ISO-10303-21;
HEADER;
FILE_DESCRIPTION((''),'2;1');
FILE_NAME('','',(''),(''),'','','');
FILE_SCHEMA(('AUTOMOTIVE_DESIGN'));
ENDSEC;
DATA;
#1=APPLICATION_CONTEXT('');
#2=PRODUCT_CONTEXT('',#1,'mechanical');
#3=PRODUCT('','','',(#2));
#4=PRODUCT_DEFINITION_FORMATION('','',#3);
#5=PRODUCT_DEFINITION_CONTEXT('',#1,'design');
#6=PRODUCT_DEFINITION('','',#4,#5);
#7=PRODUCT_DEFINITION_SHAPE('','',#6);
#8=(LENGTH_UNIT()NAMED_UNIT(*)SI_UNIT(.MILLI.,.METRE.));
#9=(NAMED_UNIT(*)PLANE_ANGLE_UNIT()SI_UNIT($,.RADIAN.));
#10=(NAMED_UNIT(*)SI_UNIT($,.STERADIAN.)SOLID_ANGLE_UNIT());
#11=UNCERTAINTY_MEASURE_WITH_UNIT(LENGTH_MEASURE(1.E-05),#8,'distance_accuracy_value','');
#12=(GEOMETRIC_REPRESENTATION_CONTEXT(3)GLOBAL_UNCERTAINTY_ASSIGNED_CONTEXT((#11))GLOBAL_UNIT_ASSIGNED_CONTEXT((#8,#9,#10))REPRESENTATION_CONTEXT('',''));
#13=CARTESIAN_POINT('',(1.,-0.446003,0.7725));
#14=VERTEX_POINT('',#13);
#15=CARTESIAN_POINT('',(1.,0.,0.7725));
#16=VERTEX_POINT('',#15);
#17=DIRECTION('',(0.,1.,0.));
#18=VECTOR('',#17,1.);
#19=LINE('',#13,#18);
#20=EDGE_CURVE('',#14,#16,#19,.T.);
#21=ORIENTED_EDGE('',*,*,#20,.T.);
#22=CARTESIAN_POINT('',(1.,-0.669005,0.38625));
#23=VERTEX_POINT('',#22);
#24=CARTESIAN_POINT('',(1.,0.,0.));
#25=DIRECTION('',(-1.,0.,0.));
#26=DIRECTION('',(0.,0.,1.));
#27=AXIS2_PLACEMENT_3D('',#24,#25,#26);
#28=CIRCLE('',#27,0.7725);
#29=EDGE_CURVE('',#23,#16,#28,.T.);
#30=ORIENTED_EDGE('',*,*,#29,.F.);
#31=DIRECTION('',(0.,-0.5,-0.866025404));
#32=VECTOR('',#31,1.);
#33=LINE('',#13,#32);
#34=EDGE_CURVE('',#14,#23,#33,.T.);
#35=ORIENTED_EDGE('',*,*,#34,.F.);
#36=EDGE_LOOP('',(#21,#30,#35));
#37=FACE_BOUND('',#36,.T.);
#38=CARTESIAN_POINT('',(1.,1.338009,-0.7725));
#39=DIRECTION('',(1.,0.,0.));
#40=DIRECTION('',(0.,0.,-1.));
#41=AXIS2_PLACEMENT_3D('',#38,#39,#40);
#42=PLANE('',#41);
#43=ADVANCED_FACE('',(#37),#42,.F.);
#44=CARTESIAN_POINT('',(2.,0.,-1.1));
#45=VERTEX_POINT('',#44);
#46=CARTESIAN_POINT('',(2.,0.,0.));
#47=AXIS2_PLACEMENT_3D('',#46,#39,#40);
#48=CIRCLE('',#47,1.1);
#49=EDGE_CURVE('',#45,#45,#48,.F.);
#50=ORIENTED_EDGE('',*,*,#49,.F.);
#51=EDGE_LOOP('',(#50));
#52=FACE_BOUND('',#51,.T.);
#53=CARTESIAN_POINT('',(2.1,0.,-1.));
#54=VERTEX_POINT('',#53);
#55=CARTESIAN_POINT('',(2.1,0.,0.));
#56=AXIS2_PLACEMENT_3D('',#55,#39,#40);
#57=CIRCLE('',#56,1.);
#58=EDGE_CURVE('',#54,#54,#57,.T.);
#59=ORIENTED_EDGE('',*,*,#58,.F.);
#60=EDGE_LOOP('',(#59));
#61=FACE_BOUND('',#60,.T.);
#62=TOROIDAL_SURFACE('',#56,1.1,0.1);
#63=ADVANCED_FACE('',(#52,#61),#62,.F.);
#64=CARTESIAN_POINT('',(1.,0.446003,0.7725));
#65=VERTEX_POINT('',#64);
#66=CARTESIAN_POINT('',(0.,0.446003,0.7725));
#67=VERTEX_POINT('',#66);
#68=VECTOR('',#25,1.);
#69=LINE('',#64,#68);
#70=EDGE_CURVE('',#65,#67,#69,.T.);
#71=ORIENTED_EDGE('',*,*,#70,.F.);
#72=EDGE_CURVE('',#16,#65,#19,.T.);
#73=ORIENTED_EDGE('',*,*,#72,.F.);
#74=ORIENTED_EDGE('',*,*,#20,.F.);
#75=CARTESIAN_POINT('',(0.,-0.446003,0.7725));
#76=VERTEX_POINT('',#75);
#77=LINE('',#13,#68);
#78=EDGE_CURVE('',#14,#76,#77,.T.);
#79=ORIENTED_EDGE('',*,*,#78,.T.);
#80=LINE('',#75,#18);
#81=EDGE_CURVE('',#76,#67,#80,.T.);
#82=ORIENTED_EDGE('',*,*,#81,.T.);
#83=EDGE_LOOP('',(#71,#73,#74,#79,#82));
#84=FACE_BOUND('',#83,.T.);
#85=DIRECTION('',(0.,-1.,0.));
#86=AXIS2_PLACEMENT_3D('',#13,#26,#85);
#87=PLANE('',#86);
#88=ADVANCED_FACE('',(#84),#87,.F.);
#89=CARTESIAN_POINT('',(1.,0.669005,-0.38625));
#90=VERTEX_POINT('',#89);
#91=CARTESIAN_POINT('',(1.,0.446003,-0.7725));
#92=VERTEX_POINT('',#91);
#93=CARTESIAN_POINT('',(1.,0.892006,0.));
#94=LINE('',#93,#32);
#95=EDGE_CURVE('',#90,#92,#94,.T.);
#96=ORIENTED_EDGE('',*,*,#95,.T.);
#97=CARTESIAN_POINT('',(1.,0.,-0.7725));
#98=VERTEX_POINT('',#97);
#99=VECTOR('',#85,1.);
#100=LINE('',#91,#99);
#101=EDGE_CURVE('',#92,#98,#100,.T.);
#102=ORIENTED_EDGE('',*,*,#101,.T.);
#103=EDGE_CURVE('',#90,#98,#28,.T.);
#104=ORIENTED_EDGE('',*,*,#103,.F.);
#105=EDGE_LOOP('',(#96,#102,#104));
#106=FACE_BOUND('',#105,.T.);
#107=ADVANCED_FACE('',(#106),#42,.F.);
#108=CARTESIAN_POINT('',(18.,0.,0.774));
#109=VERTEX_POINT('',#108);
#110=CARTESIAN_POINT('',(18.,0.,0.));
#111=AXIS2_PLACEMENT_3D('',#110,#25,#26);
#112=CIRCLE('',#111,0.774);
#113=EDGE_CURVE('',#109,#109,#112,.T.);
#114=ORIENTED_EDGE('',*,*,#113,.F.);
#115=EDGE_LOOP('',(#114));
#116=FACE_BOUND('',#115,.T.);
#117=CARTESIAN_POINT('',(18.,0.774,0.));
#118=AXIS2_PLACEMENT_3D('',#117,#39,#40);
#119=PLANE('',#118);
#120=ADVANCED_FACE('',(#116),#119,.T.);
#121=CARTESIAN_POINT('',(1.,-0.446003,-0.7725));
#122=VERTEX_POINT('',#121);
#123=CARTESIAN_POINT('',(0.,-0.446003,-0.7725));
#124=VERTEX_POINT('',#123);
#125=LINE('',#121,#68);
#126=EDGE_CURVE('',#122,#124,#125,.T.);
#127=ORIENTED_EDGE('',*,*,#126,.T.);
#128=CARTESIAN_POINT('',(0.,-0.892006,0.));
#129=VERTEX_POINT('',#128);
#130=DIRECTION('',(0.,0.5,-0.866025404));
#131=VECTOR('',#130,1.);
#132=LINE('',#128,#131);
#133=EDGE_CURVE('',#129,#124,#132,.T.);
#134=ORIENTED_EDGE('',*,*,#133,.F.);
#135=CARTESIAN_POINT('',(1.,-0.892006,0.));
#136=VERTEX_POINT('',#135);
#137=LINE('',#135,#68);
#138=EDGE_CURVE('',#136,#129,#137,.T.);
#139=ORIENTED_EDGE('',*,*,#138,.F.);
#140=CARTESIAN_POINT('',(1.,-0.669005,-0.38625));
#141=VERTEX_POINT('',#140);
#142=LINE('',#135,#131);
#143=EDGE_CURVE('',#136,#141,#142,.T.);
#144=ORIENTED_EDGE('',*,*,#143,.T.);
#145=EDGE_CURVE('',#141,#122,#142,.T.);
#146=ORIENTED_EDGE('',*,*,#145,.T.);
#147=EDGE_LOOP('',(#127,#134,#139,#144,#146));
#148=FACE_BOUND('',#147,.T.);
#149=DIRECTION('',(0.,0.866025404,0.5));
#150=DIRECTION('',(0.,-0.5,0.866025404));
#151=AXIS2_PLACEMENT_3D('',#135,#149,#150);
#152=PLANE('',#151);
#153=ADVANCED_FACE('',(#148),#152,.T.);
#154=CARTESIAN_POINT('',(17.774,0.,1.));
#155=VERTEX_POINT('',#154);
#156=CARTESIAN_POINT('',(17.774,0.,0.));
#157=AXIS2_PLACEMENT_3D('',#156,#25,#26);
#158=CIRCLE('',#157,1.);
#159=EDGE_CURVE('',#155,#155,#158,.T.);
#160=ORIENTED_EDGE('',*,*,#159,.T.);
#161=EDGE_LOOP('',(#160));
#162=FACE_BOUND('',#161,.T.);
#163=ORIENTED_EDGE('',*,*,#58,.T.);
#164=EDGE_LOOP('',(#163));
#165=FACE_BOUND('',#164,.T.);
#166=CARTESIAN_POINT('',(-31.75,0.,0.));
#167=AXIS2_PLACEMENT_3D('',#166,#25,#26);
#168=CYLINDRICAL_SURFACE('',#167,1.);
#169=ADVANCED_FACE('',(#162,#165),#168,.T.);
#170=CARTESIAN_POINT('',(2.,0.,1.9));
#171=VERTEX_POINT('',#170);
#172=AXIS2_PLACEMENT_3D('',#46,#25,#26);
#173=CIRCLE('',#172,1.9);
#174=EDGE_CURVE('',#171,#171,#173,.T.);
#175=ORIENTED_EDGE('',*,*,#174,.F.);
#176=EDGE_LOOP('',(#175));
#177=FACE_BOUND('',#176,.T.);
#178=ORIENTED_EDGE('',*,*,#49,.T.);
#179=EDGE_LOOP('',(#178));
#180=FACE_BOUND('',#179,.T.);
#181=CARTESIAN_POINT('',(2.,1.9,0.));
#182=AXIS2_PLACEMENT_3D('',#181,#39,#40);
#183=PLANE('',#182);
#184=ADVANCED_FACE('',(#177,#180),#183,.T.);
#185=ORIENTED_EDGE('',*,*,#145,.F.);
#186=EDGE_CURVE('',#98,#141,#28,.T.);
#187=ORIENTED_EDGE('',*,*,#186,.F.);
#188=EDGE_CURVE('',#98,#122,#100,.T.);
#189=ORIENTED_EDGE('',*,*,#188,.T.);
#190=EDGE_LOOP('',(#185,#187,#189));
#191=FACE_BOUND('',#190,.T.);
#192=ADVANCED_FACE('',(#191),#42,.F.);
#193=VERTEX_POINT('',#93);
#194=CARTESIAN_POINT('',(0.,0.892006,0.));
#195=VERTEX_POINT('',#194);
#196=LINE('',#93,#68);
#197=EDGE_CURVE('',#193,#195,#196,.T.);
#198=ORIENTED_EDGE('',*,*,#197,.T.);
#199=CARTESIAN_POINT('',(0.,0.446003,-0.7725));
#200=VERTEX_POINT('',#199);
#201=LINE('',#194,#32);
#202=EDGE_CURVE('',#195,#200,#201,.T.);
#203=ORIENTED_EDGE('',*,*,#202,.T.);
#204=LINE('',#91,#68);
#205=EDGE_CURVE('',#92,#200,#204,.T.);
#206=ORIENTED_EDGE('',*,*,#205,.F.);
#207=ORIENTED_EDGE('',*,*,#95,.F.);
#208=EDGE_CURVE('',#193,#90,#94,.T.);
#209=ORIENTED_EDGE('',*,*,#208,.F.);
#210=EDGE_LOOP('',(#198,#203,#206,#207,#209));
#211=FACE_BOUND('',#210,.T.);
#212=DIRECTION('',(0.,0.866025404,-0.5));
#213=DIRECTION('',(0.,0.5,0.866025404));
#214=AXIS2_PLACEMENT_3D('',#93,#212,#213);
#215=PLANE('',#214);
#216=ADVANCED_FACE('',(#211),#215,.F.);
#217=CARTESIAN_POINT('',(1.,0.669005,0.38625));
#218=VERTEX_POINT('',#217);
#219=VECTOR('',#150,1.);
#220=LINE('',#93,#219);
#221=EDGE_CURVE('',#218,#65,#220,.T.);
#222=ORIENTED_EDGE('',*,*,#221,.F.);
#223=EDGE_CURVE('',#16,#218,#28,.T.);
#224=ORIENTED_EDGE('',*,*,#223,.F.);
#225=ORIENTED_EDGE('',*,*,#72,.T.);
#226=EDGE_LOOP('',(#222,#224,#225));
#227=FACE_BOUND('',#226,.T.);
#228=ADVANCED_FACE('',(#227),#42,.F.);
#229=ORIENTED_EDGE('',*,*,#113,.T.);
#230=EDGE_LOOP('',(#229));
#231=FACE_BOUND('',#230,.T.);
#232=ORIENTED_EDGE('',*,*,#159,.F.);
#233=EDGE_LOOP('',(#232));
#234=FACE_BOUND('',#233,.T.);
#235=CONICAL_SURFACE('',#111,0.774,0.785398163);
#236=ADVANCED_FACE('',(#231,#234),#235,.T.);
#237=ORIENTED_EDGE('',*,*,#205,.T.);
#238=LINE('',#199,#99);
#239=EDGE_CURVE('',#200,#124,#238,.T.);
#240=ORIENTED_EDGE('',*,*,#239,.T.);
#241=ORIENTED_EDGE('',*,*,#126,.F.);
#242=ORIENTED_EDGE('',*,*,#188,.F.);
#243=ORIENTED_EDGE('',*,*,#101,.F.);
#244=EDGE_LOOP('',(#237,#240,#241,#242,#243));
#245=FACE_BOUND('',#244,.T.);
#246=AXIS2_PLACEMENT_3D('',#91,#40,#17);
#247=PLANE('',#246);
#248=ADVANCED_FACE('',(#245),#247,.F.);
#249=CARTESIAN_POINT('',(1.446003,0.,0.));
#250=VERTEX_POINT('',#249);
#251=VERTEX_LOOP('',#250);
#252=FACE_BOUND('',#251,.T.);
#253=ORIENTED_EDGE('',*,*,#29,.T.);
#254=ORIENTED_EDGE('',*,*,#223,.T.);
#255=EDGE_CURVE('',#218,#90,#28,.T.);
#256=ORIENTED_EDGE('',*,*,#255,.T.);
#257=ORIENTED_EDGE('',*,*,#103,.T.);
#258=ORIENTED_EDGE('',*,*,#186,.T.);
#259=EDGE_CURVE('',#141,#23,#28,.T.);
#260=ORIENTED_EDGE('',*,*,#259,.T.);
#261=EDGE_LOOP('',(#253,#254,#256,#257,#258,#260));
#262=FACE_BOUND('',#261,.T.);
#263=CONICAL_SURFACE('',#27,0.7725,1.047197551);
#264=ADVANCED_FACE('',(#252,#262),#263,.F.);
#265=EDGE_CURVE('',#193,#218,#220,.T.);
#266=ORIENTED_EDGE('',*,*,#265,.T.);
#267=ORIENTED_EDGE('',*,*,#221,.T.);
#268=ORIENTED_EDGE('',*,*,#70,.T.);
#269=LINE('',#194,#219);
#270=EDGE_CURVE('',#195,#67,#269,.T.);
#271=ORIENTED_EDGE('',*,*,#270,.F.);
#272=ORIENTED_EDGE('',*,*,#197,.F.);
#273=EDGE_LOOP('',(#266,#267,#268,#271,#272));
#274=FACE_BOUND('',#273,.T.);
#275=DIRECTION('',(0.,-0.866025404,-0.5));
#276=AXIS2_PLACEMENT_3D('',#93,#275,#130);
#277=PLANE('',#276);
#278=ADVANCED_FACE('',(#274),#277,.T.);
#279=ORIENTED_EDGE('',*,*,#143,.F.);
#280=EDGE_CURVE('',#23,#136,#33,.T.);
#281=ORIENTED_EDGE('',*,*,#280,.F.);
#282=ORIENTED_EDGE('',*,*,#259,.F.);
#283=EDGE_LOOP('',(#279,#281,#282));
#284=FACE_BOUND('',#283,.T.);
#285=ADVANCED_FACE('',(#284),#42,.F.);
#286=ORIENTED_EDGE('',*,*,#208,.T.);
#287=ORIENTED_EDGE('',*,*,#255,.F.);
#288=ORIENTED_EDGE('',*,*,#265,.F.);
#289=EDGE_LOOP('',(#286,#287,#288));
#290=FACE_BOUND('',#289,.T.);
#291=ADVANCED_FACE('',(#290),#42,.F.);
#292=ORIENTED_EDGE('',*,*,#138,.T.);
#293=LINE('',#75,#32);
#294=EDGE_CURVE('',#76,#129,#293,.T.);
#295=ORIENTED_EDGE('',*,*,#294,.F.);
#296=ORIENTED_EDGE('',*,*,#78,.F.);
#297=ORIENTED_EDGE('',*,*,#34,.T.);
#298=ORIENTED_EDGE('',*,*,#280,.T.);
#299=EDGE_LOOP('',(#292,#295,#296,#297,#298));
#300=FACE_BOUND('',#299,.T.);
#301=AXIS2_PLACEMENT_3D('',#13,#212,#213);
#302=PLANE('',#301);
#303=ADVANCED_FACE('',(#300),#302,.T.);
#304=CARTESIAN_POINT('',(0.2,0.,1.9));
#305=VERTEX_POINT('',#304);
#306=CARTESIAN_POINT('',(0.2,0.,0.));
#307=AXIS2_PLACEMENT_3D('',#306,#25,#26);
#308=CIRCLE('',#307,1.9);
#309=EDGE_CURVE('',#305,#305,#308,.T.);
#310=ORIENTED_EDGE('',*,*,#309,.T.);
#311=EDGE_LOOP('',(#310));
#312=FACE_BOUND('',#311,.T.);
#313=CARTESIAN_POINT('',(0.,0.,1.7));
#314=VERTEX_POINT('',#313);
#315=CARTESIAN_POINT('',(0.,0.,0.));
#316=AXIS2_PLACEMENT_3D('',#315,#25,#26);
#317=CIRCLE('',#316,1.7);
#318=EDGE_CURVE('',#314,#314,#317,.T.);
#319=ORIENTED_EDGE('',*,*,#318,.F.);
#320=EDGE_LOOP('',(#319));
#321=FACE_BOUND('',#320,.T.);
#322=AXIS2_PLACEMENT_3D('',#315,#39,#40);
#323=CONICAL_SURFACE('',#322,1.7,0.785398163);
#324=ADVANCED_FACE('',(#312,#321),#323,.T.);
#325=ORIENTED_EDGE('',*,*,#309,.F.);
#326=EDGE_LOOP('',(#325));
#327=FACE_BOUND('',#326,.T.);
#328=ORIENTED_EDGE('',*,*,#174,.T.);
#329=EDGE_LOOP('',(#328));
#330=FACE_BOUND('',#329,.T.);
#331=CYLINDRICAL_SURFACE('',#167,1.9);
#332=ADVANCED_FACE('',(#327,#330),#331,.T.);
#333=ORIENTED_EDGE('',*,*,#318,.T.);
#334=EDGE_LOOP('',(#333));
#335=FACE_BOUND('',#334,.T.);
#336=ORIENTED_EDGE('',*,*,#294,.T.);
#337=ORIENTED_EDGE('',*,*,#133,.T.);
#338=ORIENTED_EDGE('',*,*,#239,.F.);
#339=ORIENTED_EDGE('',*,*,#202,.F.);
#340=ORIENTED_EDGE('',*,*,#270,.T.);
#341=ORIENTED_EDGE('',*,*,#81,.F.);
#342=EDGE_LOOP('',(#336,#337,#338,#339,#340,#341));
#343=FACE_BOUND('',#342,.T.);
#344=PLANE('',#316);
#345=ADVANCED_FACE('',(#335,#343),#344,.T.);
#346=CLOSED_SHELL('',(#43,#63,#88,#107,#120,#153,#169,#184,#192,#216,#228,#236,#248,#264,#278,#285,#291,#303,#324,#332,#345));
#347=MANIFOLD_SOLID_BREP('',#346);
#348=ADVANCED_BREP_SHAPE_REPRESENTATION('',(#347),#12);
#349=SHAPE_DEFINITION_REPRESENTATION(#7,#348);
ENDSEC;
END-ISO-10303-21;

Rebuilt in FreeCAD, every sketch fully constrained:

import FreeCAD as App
import Part
import Sketcher
from FreeCAD import Vector
Q = App.Units.Quantity


def edges_at(feature, points):
    """Names of the edges that pass closest to the given points."""
    edges = feature.Shape.Edges
    near = lambda p: min(range(len(edges)), key=lambda i: edges[i].distToShape(Part.Vertex(*p))[0])
    return sorted({f"Edge{near(p) + 1}" for p in points})


def add_polygon(sketch, points):
    """Adds a closed chain of lines whose ends are joined by coincident constraints."""
    first, n = sketch.GeometryCount, len(points)
    for a, b in zip(points, points[1:] + points[:1]):
        sketch.addGeometry(Part.LineSegment(App.Vector(*a, 0), App.Vector(*b, 0)), False)
    for i in range(n):
        sketch.addConstraint(Sketcher.Constraint("Coincident", first + i, 2, first + (i + 1) % n, 1))

doc = App.newDocument("Part")
body = doc.addObject("PartDesign::Body", "Body")

# Sketch on XY plane
sketch1 = body.newObject("Sketcher::SketchObject", "Sketch")
sketch1.AttachmentSupport = (doc.getObject("XY_Plane"), [""])
sketch1.MapMode = "FlatFace"
add_polygon(sketch1, [(0, 1.7), (0, 0), (18, 0), (18, 0.77), (17.77, 1), (2, 1), (2, 1.9), (0.2, 1.9)])  # lines 0-7
sketch1.addConstraint(Sketcher.Constraint("Vertical", 0))
sketch1.addConstraint(Sketcher.Constraint("Horizontal", 1))
sketch1.addConstraint(Sketcher.Constraint("Vertical", 2))
sketch1.addConstraint(Sketcher.Constraint("Horizontal", 4))
sketch1.addConstraint(Sketcher.Constraint("Vertical", 5))
sketch1.addConstraint(Sketcher.Constraint("Horizontal", 6))
sketch1.addConstraint(Sketcher.Constraint("Coincident", 0, 2, -1, 1))
sketch1.addConstraint(Sketcher.Constraint("Perpendicular", 3, 7))
sketch1.addConstraint(Sketcher.Constraint("DistanceX", 1, 1, 1, 2, Q("18 mm")))
sketch1.addConstraint(Sketcher.Constraint("Angle", 3, Q("135 deg")))
sketch1.addConstraint(Sketcher.Constraint("DistanceX", 6, 2, 6, 1, Q("1.8 mm")))
sketch1.addConstraint(Sketcher.Constraint("DistanceY", 0, 2, 0, 1, Q("1.7 mm")))
sketch1.addConstraint(Sketcher.Constraint("DistanceY", 5, 1, 5, 2, Q("0.9 mm")))
sketch1.addConstraint(Sketcher.Constraint("DistanceY", -1, 1, 3, 2, Q("1 mm")))
sketch1.addConstraint(Sketcher.Constraint("DistanceX", 4, 2, 4, 1, Q("15.774 mm")))
revolution = body.newObject("PartDesign::Revolution", "Revolution")
revolution.Profile = sketch1
revolution.ReferenceAxis = (sketch1, ["H_Axis"])
revolution.Angle = 360
doc.recompute()

fillet = body.newObject("PartDesign::Fillet", "Fillet")
fillet.Base = (revolution, edges_at(revolution, [(2, -1, 0)]))
fillet.Radius = 0.1

# Sketch on XY plane
sketch2 = body.newObject("Sketcher::SketchObject", "Sketch001")
sketch2.AttachmentSupport = (doc.getObject("XY_Plane"), [""])
sketch2.MapMode = "FlatFace"
add_polygon(sketch2, [(1, 0.8), (0, 0.8), (0, 0), (1.4, 0)])  # lines 0-3
sketch2.addConstraint(Sketcher.Constraint("Horizontal", 0))
sketch2.addConstraint(Sketcher.Constraint("Vertical", 1))
sketch2.addConstraint(Sketcher.Constraint("Horizontal", 2))
sketch2.addConstraint(Sketcher.Constraint("Coincident", 1, 2, -1, 1))
sketch2.addConstraint(Sketcher.Constraint("DistanceX", 0, 2, 0, 1, Q("1 mm")))
sketch2.addConstraint(Sketcher.Constraint("Angle", 3, Q("120 deg")))
sketch2.addConstraint(Sketcher.Constraint("DistanceY", 1, 2, 1, 1, Q("0.7725 mm")))
groove = body.newObject("PartDesign::Groove", "Groove")
groove.Profile = sketch2
groove.ReferenceAxis = (sketch2, ["H_Axis"])
groove.Angle = 360

# Sketch on YZ plane
sketch3 = body.newObject("Sketcher::SketchObject", "Sketch002")
sketch3.AttachmentSupport = (doc.getObject("YZ_Plane"), [""])
sketch3.MapMode = "FlatFace"
add_polygon(sketch3, [(0.9, 0), (0.4, -0.8), (-0.4, -0.8), (-0.9, 0), (-0.4, 0.8), (0.4, 0.8)])  # lines 0-5
sketch3.addConstraint(Sketcher.Constraint("Horizontal", 1))
sketch3.addConstraint(Sketcher.Constraint("Horizontal", 4))
sketch3.addConstraint(Sketcher.Constraint("Symmetric", 0, 2, 3, 2, -1, 1))
sketch3.addConstraint(Sketcher.Constraint("Symmetric", 2, 2, 5, 2, -1, 1))
sketch3.addConstraint(Sketcher.Constraint("PointOnObject", 2, 2, -1))
sketch3.addConstraint(Sketcher.Constraint("Parallel", 2, 5))
sketch3.addConstraint(Sketcher.Constraint("Vertical", 1, 2, 3, 2))
sketch3.addConstraint(Sketcher.Constraint("Angle", 0, Q("-120 deg")))
sketch3.addConstraint(Sketcher.Constraint("DistanceY", 1, 2, 3, 2, Q("1.545 mm")))
sketch3.addConstraint(Sketcher.Constraint("DistanceX", 1, 2, 1, 1, Q("0.892006 mm")))
pocket1 = body.newObject("PartDesign::Pocket", "Pocket")
pocket1.Profile = sketch3
pocket1.Length = 1
pocket1.Reversed = True

doc.recompute()
